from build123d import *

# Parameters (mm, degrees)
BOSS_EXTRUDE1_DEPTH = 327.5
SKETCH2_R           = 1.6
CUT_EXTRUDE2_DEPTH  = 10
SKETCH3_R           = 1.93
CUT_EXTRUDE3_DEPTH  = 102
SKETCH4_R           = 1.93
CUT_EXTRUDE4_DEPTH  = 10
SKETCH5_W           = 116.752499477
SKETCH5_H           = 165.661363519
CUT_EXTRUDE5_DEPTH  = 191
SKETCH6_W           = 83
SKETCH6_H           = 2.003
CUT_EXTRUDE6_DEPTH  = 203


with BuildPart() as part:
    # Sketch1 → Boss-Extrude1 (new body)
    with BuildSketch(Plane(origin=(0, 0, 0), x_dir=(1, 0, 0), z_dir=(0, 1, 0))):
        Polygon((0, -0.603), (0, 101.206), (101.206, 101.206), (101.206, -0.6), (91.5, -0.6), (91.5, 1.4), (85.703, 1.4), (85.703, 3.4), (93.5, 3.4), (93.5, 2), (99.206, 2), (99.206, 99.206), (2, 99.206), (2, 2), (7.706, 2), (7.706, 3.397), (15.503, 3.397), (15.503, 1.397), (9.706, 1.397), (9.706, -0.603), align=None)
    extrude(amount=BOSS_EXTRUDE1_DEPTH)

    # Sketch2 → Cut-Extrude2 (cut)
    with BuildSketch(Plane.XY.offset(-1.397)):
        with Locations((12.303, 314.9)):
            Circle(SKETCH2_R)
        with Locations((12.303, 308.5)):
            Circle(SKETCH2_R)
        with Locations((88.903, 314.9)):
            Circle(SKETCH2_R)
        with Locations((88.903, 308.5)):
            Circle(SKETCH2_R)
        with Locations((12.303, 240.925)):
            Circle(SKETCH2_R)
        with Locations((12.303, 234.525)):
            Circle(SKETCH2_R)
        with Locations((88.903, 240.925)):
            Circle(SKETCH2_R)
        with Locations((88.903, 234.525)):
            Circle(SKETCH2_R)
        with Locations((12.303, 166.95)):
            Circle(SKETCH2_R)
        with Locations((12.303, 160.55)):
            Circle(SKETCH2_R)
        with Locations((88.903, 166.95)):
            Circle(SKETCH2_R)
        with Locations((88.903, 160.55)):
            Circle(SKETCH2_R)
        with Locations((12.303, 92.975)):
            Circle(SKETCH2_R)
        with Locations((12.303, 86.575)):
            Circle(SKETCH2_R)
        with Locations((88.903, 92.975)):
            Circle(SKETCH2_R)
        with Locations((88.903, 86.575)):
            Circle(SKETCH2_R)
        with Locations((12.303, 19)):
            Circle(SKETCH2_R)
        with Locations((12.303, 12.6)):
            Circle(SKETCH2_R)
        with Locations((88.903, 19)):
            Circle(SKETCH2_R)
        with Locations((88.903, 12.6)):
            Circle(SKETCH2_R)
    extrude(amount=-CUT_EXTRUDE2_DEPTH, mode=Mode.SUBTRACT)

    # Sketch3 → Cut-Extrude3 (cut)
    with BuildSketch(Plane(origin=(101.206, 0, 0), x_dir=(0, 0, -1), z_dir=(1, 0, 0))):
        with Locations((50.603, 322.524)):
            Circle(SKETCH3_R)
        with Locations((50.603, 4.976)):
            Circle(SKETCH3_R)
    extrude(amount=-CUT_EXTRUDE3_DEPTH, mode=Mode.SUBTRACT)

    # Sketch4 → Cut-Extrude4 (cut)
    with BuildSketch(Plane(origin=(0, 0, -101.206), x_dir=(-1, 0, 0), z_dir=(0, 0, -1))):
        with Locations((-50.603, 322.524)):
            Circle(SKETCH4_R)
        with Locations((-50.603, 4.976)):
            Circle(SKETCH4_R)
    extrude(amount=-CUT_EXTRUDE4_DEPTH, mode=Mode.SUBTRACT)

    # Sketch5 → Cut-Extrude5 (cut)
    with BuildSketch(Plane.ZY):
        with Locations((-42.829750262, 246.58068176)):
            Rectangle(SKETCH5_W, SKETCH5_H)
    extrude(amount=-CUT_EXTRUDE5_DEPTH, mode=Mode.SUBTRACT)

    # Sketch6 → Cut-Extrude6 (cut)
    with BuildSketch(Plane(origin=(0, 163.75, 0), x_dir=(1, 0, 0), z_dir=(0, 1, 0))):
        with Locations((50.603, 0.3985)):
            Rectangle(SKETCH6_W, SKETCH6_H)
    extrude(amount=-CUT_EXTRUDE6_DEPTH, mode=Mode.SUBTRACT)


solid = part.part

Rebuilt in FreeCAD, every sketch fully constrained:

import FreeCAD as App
import Part
import Sketcher

V = App.Vector


def add_polygon(sketch, points):
    """Adds a closed chain of lines whose ends are joined by coincident constraints."""
    first, n = sketch.GeometryCount, len(points)
    for a, b in zip(points, points[1:] + points[:1]):
        sketch.addGeometry(Part.LineSegment(App.Vector(*a, 0), App.Vector(*b, 0)), False)
    for i in range(n):
        sketch.addConstraint(Sketcher.Constraint("Coincident", first + i, 2, first + (i + 1) % n, 1))

doc = App.newDocument("Part")
params = doc.addObject("Spreadsheet::Sheet", "Params")
for row, (alias, value) in enumerate([
    ("sketch1_height", "2 mm"),
    ("sketch1_height2", "1.4 mm"),
    ("pad1_length", "327.5 mm"),
    ("sketch2_diameter", "3.2 mm"),
    ("pocket1_length", "10 mm"),
    ("sketch3_diameter", "3.86 mm"),
    ("pocket2_length", "102 mm"),
    ("sketch4_diameter", "3.86 mm"),
    ("pocket3_length", "10 mm"),
    ("pocket4_length", "191 mm"),
    ("sketch6_width", "83 mm"),
    ("pocket5_length", "203 mm"),
], start=1):
    params.set(f"A{row}", alias)
    params.set(f"B{row}", "=" + value)
    params.setAlias(f"B{row}", alias)

body = doc.addObject("PartDesign::Body", "Body")

# Sketch on XZ plane
sketch1 = doc.addObject("Sketcher::SketchObject", "Sketch")
body.addObject(sketch1)
sketch1.AttachmentSupport = (doc.XZ_Plane, [""])
sketch1.MapMode = "FlatFace"
add_polygon(sketch1, [(0, -101.2), (0, 0.6), (9.7, 0.6), (9.7, -1.4), (15.5, -1.4), (15.5, -3.4), (7.7, -3.4), (7.7, -2), (2, -2), (2, -99.2), (99.2, -99.2), (99.2, -2), (93.5, -2), (93.5, -3.4), (85.7, -3.4), (85.7, -1.4), (91.5, -1.4), (91.5, 0.6), (101.2, 0.6), (101.2, -101.2)])  # lines 0-19
sketch1.addConstraint(Sketcher.Constraint("Vertical", 0))
sketch1.addConstraint(Sketcher.Constraint("Horizontal", 1))
sketch1.addConstraint(Sketcher.Constraint("Vertical", 2))
sketch1.addConstraint(Sketcher.Constraint("Horizontal", 3))
sketch1.addConstraint(Sketcher.Constraint("Vertical", 4))
sketch1.addConstraint(Sketcher.Constraint("Horizontal", 5))
sketch1.addConstraint(Sketcher.Constraint("Vertical", 6))
sketch1.addConstraint(Sketcher.Constraint("Horizontal", 7))
sketch1.addConstraint(Sketcher.Constraint("Vertical", 8))
sketch1.addConstraint(Sketcher.Constraint("Horizontal", 9))
sketch1.addConstraint(Sketcher.Constraint("Vertical", 10))
sketch1.addConstraint(Sketcher.Constraint("Horizontal", 11))
sketch1.addConstraint(Sketcher.Constraint("Vertical", 12))
sketch1.addConstraint(Sketcher.Constraint("Horizontal", 13))
sketch1.addConstraint(Sketcher.Constraint("Vertical", 14))
sketch1.addConstraint(Sketcher.Constraint("Horizontal", 15))
sketch1.addConstraint(Sketcher.Constraint("Vertical", 16))
sketch1.addConstraint(Sketcher.Constraint("Horizontal", 17))
sketch1.addConstraint(Sketcher.Constraint("Vertical", 18))
sketch1.addConstraint(Sketcher.Constraint("Horizontal", 19))
sketch1.addConstraint(Sketcher.Constraint("PointOnObject", 0, 2, -2))
sketch1.addConstraint(Sketcher.Constraint("Horizontal", 7, 2, 10, 2))
sketch1.addConstraint(Sketcher.Constraint("Equal", 7, 11))
sketch1.addConstraint(Sketcher.Constraint("Equal", 5, 13))
sketch1.addConstraint(Sketcher.Constraint("Equal", 3, 15))
sketch1.addConstraint(Sketcher.Constraint("Equal", 1, 17))
sketch1.addConstraint(Sketcher.Constraint("Equal", 2, 4))
sketch1.addConstraint(Sketcher.Constraint("Equal", 9, 8))
sketch1.addConstraint(Sketcher.Constraint("Equal", 4, 14))
sketch1.addConstraint(Sketcher.Constraint("Equal", 14, 16))
sketch1.addConstraint(Sketcher.Constraint("DistanceY", 2, 2, 2, 1, 2.0))
sketch1.addConstraint(Sketcher.Constraint("DistanceY", 12, 2, 12, 1, 1.4))
sketch1.addConstraint(Sketcher.Constraint("DistanceY", 6, 2, -1, 1, 2.0))
sketch1.addConstraint(Sketcher.Constraint("DistanceX", -1, 1, 7, 2, 2.0))
sketch1.addConstraint(Sketcher.Constraint("DistanceX", 5, 2, 2, 2, 2.0))
sketch1.addConstraint(Sketcher.Constraint("DistanceY", 18, 2, 9, 2, 2.0))
sketch1.addConstraint(Sketcher.Constraint("DistanceX", -1, 1, 11, 2, 93.5))
sketch1.addConstraint(Sketcher.Constraint("DistanceX", 4, 2, 13, 2, 70.2))
sketch1.addConstraint(Sketcher.Constraint("DistanceX", 1, 1, 1, 2, 9.706))
sketch1.addConstraint(Sketcher.Constraint("DistanceY", 0, 1, 0, 2, 101.809))
sketch1.setExpression("Constraints[50]", "Params.sketch1_height")
sketch1.setExpression("Constraints[51]", "Params.sketch1_height2")
pad1 = doc.addObject("PartDesign::Pad", "Pad")
body.addObject(pad1)
pad1.Profile = sketch1
pad1.setExpression("Length", "Params.pad1_length")
pad1.Reversed = True

# Sketch on XY plane
sketch2 = doc.addObject("Sketcher::SketchObject", "Sketch001")
body.addObject(sketch2)
sketch2.AttachmentSupport = (doc.XY_Plane, [""])
sketch2.MapMode = "FlatFace"
sketch2.AttachmentOffset = App.Placement(V(0, 0, -1.397), App.Rotation())
sketch2.addGeometry(Part.Circle(V(12.3, 314.9, 0), V(0, 0, 1), 1.6), False)
sketch2.addGeometry(Part.Circle(V(12.3, 308.5, 0), V(0, 0, 1), 1.6), False)
sketch2.addGeometry(Part.Circle(V(88.9, 314.9, 0), V(0, 0, 1), 1.6), False)
sketch2.addGeometry(Part.Circle(V(88.9, 308.5, 0), V(0, 0, 1), 1.6), False)
sketch2.addGeometry(Part.Circle(V(12.3, 240.9, 0), V(0, 0, 1), 1.6), False)
sketch2.addGeometry(Part.Circle(V(12.3, 234.5, 0), V(0, 0, 1), 1.6), False)
sketch2.addGeometry(Part.Circle(V(88.9, 240.9, 0), V(0, 0, 1), 1.6), False)
sketch2.addGeometry(Part.Circle(V(88.9, 234.5, 0), V(0, 0, 1), 1.6), False)
sketch2.addGeometry(Part.Circle(V(12.3, 166.9, 0), V(0, 0, 1), 1.6), False)
sketch2.addGeometry(Part.Circle(V(12.3, 160.6, 0), V(0, 0, 1), 1.6), False)
sketch2.addGeometry(Part.Circle(V(88.9, 166.9, 0), V(0, 0, 1), 1.6), False)
sketch2.addGeometry(Part.Circle(V(88.9, 160.6, 0), V(0, 0, 1), 1.6), False)
sketch2.addGeometry(Part.Circle(V(12.3, 93, 0), V(0, 0, 1), 1.6), False)
sketch2.addGeometry(Part.Circle(V(12.3, 86.6, 0), V(0, 0, 1), 1.6), False)
sketch2.addGeometry(Part.Circle(V(88.9, 93, 0), V(0, 0, 1), 1.6), False)
sketch2.addGeometry(Part.Circle(V(88.9, 86.6, 0), V(0, 0, 1), 1.6), False)
sketch2.addGeometry(Part.Circle(V(12.3, 19, 0), V(0, 0, 1), 1.6), False)
sketch2.addGeometry(Part.Circle(V(12.3, 12.6, 0), V(0, 0, 1), 1.6), False)
sketch2.addGeometry(Part.Circle(V(88.9, 19, 0), V(0, 0, 1), 1.6), False)
sketch2.addGeometry(Part.Circle(V(88.9, 12.6, 0), V(0, 0, 1), 1.6), False)
sketch2.addConstraint(Sketcher.Constraint("Equal", 0, 1))
sketch2.addConstraint(Sketcher.Constraint("Equal", 1, 2))
sketch2.addConstraint(Sketcher.Constraint("Equal", 2, 3))
sketch2.addConstraint(Sketcher.Constraint("Equal", 3, 4))
sketch2.addConstraint(Sketcher.Constraint("Equal", 4, 5))
sketch2.addConstraint(Sketcher.Constraint("Equal", 5, 6))
sketch2.addConstraint(Sketcher.Constraint("Equal", 6, 7))
sketch2.addConstraint(Sketcher.Constraint("Equal", 7, 8))
sketch2.addConstraint(Sketcher.Constraint("Equal", 8, 9))
sketch2.addConstraint(Sketcher.Constraint("Equal", 9, 10))
sketch2.addConstraint(Sketcher.Constraint("Equal", 10, 11))
sketch2.addConstraint(Sketcher.Constraint("Equal", 11, 12))
sketch2.addConstraint(Sketcher.Constraint("Equal", 12, 13))
sketch2.addConstraint(Sketcher.Constraint("Equal", 13, 14))
sketch2.addConstraint(Sketcher.Constraint("Equal", 14, 15))
sketch2.addConstraint(Sketcher.Constraint("Equal", 15, 16))
sketch2.addConstraint(Sketcher.Constraint("Equal", 16, 17))
sketch2.addConstraint(Sketcher.Constraint("Equal", 17, 18))
sketch2.addConstraint(Sketcher.Constraint("Equal", 18, 19))
sketch2.addConstraint(Sketcher.Constraint("Horizontal", 0, 3, 2, 3))
sketch2.addConstraint(Sketcher.Constraint("Horizontal", 1, 3, 3, 3))
sketch2.addConstraint(Sketcher.Constraint("Horizontal", 4, 3, 6, 3))
sketch2.addConstraint(Sketcher.Constraint("Horizontal", 5, 3, 7, 3))
sketch2.addConstraint(Sketcher.Constraint("Horizontal", 8, 3, 10, 3))
sketch2.addConstraint(Sketcher.Constraint("Horizontal", 9, 3, 11, 3))
sketch2.addConstraint(Sketcher.Constraint("Horizontal", 12, 3, 14, 3))
sketch2.addConstraint(Sketcher.Constraint("Horizontal", 13, 3, 15, 3))
sketch2.addConstraint(Sketcher.Constraint("Horizontal", 16, 3, 18, 3))
sketch2.addConstraint(Sketcher.Constraint("Horizontal", 17, 3, 19, 3))
sketch2.addConstraint(Sketcher.Constraint("Vertical", 0, 3, 1, 3))
sketch2.addConstraint(Sketcher.Constraint("Vertical", 2, 3, 3, 3))
sketch2.addConstraint(Sketcher.Constraint("Vertical", 1, 3, 4, 3))
sketch2.addConstraint(Sketcher.Constraint("Vertical", 4, 3, 5, 3))
sketch2.addConstraint(Sketcher.Constraint("Vertical", 3, 3, 6, 3))
sketch2.addConstraint(Sketcher.Constraint("Vertical", 6, 3, 7, 3))
sketch2.addConstraint(Sketcher.Constraint("Vertical", 5, 3, 8, 3))
sketch2.addConstraint(Sketcher.Constraint("Vertical", 8, 3, 9, 3))
sketch2.addConstraint(Sketcher.Constraint("Vertical", 7, 3, 10, 3))
sketch2.addConstraint(Sketcher.Constraint("Vertical", 10, 3, 11, 3))
sketch2.addConstraint(Sketcher.Constraint("Vertical", 9, 3, 12, 3))
sketch2.addConstraint(Sketcher.Constraint("Vertical", 12, 3, 13, 3))
sketch2.addConstraint(Sketcher.Constraint("Vertical", 11, 3, 14, 3))
sketch2.addConstraint(Sketcher.Constraint("Vertical", 14, 3, 15, 3))
sketch2.addConstraint(Sketcher.Constraint("Vertical", 13, 3, 16, 3))
sketch2.addConstraint(Sketcher.Constraint("Vertical", 16, 3, 17, 3))
sketch2.addConstraint(Sketcher.Constraint("Vertical", 15, 3, 18, 3))
sketch2.addConstraint(Sketcher.Constraint("Vertical", 18, 3, 19, 3))
sketch2.addConstraint(Sketcher.Constraint("Diameter", 0, 3.2))
sketch2.addConstraint(Sketcher.Constraint("DistanceY", -1, 1, 16, 3, 19.0))
sketch2.addConstraint(Sketcher.Constraint("DistanceY", -1, 1, 0, 3, 314.9))
sketch2.addConstraint(Sketcher.Constraint("DistanceY", -1, 1, 1, 3, 308.5))
sketch2.addConstraint(Sketcher.Constraint("DistanceY", -1, 1, 17, 3, 12.6))
sketch2.addConstraint(Sketcher.Constraint("DistanceX", 0, 3, 2, 3, 76.6))
sketch2.addConstraint(Sketcher.Constraint("DistanceY", 5, 3, 4, 3, 6.4))
sketch2.addConstraint(Sketcher.Constraint("DistanceY", 9, 3, 8, 3, 6.4))
sketch2.addConstraint(Sketcher.Constraint("DistanceY", 13, 3, 12, 3, 6.4))
sketch2.addConstraint(Sketcher.Constraint("DistanceY", -1, 1, 8, 3, 166.95))
sketch2.addConstraint(Sketcher.Constraint("DistanceY", 12, 3, 5, 3, 141.55))
sketch2.addConstraint(Sketcher.Constraint("DistanceX", -1, 1, 0, 3, 12.303))
sketch2.addConstraint(Sketcher.Constraint("DistanceY", -1, 1, 4, 3, 240.925))
sketch2.setExpression("Constraints[47]", "Params.sketch2_diameter")
pocket1 = doc.addObject("PartDesign::Pocket", "Pocket")
body.addObject(pocket1)
pocket1.Profile = sketch2
pocket1.setExpression("Length", "Params.pocket1_length")

# Sketch on YZ plane
sketch3 = doc.addObject("Sketcher::SketchObject", "Sketch002")
body.addObject(sketch3)
sketch3.AttachmentSupport = (doc.YZ_Plane, [""])
sketch3.MapMode = "FlatFace"
sketch3.AttachmentOffset = App.Placement(V(0, 0, 101.206), App.Rotation())
sketch3.addGeometry(Part.Circle(V(322.5, -50.6, 0), V(0, 0, 1), 1.9), False)
sketch3.addGeometry(Part.Circle(V(5, -50.6, 0), V(0, 0, 1), 1.9), False)
sketch3.addConstraint(Sketcher.Constraint("Equal", 0, 1))
sketch3.addConstraint(Sketcher.Constraint("Horizontal", 0, 3, 1, 3))
sketch3.addConstraint(Sketcher.Constraint("Diameter", 0, 3.86))
sketch3.addConstraint(Sketcher.Constraint("DistanceX", -1, 1, 0, 3, 322.524))
sketch3.addConstraint(Sketcher.Constraint("DistanceY", 0, 3, -1, 1, 50.603))
sketch3.addConstraint(Sketcher.Constraint("DistanceX", -1, 1, 1, 3, 4.976))
sketch3.setExpression("Constraints[2]", "Params.sketch3_diameter")
pocket2 = doc.addObject("PartDesign::Pocket", "Pocket001")
body.addObject(pocket2)
pocket2.Profile = sketch3
pocket2.setExpression("Length", "Params.pocket2_length")

# Sketch on XY plane
sketch4 = doc.addObject("Sketcher::SketchObject", "Sketch003")
body.addObject(sketch4)
sketch4.AttachmentSupport = (doc.XY_Plane, [""])
sketch4.MapMode = "FlatFace"
sketch4.AttachmentOffset = App.Placement(V(0, 0, -101.206), App.Rotation())
sketch4.addGeometry(Part.Circle(V(50.6, 322.5, 0), V(0, 0, 1), 1.9), False)
sketch4.addGeometry(Part.Circle(V(50.6, 5, 0), V(0, 0, 1), 1.9), False)
sketch4.addConstraint(Sketcher.Constraint("Equal", 0, 1))
sketch4.addConstraint(Sketcher.Constraint("Vertical", 0, 3, 1, 3))
sketch4.addConstraint(Sketcher.Constraint("Diameter", 0, 3.86))
sketch4.addConstraint(Sketcher.Constraint("DistanceX", -1, 1, 0, 3, 50.603))
sketch4.addConstraint(Sketcher.Constraint("DistanceY", -1, 1, 0, 3, 322.524))
sketch4.addConstraint(Sketcher.Constraint("DistanceY", -1, 1, 1, 3, 4.976))
sketch4.setExpression("Constraints[2]", "Params.sketch4_diameter")
pocket3 = doc.addObject("PartDesign::Pocket", "Pocket002")
body.addObject(pocket3)
pocket3.Profile = sketch4
pocket3.setExpression("Length", "Params.pocket3_length")
pocket3.Reversed = True

# Sketch on YZ plane
sketch5 = doc.addObject("Sketcher::SketchObject", "Sketch004")
body.addObject(sketch5)
sketch5.AttachmentSupport = (doc.YZ_Plane, [""])
sketch5.MapMode = "FlatFace"
add_polygon(sketch5, [(329, -101), (164, -101), (164, 16), (329, 16)])  # lines 0-3
sketch5.addConstraint(Sketcher.Constraint("Horizontal", 0))
sketch5.addConstraint(Sketcher.Constraint("Vertical", 1))
sketch5.addConstraint(Sketcher.Constraint("Horizontal", 2))
sketch5.addConstraint(Sketcher.Constraint("Vertical", 3))
sketch5.addConstraint(Sketcher.Constraint("DistanceX", -1, 1, 0, 2, 163.75))
sketch5.addConstraint(Sketcher.Constraint("DistanceY", 1, 1, 1, 2, 116.752499))
sketch5.addConstraint(Sketcher.Constraint("DistanceY", 0, 2, -1, 1, 101.206))
sketch5.addConstraint(Sketcher.Constraint("DistanceX", 0, 2, 0, 1, 165.661364))
pocket4 = doc.addObject("PartDesign::Pocket", "Pocket003")
body.addObject(pocket4)
pocket4.Profile = sketch5
pocket4.setExpression("Length", "Params.pocket4_length")
pocket4.Reversed = True

# Sketch on XZ plane
sketch6 = doc.addObject("Sketcher::SketchObject", "Sketch005")
body.addObject(sketch6)
sketch6.AttachmentSupport = (doc.XZ_Plane, [""])
sketch6.MapMode = "FlatFace"
sketch6.AttachmentOffset = App.Placement(V(0, 0, -163.75), App.Rotation())
add_polygon(sketch6, [(9.1, -1.4), (9.1, 0.6), (92.1, 0.6), (92.1, -1.4)])  # lines 0-3
sketch6.addConstraint(Sketcher.Constraint("Vertical", 0))
sketch6.addConstraint(Sketcher.Constraint("Horizontal", 1))
sketch6.addConstraint(Sketcher.Constraint("Vertical", 2))
sketch6.addConstraint(Sketcher.Constraint("Horizontal", 3))
sketch6.addConstraint(Sketcher.Constraint("DistanceX", 1, 1, 1, 2, 83.0))
sketch6.addConstraint(Sketcher.Constraint("DistanceY", 2, 2, -1, 1, 1.4))
sketch6.addConstraint(Sketcher.Constraint("DistanceY", 0, 1, 0, 2, 2.003))
sketch6.addConstraint(Sketcher.Constraint("DistanceX", -1, 1, 0, 2, 9.103))
sketch6.setExpression("Constraints[8]", "Params.sketch6_width")
pocket5 = doc.addObject("PartDesign::Pocket", "Pocket004")
body.addObject(pocket5)
pocket5.Profile = sketch6
pocket5.setExpression("Length", "Params.pocket5_length")
pocket5.Reversed = True

doc.recompute()
